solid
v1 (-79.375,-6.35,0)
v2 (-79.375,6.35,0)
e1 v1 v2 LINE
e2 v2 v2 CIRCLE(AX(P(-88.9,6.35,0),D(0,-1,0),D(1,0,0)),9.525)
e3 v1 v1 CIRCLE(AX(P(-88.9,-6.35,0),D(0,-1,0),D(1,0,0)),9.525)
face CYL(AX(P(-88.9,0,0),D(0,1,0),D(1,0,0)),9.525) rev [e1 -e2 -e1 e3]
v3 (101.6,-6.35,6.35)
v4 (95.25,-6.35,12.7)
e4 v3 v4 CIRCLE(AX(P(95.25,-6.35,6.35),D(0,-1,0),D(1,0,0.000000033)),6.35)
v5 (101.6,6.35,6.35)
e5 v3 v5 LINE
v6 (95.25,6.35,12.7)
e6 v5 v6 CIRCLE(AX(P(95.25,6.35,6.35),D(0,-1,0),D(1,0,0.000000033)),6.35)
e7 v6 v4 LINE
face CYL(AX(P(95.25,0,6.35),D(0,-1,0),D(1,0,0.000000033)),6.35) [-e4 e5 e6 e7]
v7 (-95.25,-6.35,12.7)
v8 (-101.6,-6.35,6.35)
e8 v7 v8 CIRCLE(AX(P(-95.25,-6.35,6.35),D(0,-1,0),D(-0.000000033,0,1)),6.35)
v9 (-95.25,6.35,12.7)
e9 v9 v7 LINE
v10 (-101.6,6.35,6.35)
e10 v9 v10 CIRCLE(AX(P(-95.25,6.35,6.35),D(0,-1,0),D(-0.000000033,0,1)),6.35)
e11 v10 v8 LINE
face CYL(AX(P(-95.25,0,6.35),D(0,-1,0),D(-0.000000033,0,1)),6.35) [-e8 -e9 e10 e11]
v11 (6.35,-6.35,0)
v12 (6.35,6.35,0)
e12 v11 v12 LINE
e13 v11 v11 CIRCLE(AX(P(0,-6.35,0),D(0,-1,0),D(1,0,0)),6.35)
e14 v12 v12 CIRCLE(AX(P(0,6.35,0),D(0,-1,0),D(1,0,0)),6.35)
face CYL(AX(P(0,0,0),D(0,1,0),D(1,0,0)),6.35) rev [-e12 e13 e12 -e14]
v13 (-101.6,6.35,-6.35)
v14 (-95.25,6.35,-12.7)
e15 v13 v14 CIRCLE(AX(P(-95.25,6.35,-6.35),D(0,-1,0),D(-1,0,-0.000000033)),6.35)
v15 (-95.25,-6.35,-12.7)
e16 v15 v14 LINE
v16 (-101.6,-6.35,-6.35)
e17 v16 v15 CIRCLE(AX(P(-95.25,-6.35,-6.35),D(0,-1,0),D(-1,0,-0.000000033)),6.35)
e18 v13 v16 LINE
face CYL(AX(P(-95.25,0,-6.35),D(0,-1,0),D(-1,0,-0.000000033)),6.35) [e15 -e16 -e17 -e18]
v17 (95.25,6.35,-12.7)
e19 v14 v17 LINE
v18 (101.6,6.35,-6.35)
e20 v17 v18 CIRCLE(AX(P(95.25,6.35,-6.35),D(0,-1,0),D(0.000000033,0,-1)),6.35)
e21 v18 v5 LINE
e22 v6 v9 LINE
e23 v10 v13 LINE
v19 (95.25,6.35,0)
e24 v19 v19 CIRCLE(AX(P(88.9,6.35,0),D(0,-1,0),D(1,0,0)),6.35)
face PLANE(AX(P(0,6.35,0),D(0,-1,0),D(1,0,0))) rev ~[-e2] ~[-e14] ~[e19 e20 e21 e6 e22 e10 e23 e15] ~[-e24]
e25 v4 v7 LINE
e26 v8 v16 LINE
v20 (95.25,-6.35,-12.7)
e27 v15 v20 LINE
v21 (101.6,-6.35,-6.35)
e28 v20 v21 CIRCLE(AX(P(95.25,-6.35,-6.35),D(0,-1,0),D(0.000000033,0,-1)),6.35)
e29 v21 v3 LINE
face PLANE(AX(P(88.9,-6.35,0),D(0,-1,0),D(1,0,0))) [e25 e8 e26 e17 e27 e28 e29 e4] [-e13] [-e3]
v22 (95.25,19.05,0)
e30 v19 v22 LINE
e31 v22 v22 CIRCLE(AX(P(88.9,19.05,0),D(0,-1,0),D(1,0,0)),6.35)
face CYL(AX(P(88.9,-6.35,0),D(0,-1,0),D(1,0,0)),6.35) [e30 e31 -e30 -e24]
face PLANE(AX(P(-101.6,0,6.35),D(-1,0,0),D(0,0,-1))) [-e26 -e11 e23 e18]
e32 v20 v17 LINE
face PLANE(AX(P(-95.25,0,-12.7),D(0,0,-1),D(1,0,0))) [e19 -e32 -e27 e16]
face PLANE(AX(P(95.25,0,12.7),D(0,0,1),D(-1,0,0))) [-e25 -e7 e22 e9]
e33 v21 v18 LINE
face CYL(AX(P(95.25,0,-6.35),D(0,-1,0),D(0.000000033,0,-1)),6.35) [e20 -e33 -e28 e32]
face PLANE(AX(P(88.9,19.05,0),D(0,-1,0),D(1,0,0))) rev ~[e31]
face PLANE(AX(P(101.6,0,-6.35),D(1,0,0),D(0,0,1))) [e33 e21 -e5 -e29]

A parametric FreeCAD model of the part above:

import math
import FreeCAD as App
import Part
import Sketcher
from FreeCAD import Vector
Q = App.Units.Quantity

doc = App.newDocument("Part")
params = doc.addObject("Spreadsheet::Sheet", "Params")
for row, (alias, value) in enumerate([
    ("sketch1_diameter", "0.5 in"),
    ("sketch1_diameter2", "0.75 in"),
    ("sketch1_width", "7.5 in"),
    ("sketch1_height", "0.5 in"),
    ("pad1_length", "0.5 in"),
    ("sketch2_diameter", "0.5 in"),
    ("pad2_length", "1 in"),
], start=1):
    params.set(f"A{row}", alias)
    params.set(f"B{row}", "=" + value)
    params.setAlias(f"B{row}", alias)

body = doc.addObject("PartDesign::Body", "Body")

sketch1 = body.newObject("Sketcher::SketchObject", "Sketch")
sketch1.AttachmentSupport = (doc.getObject("XZ_Plane"), [""])
sketch1.MapMode = "FlatFace"
sketch1.addGeometry([
    Part.ArcOfCircle(Part.Circle(Vector(95, 6, 0), Vector(0, 0, 1), 6), math.radians(0), math.radians(90)),
    Part.LineSegment(Vector(95, 13, 0), Vector(-95, 13, 0)),
    Part.ArcOfCircle(Part.Circle(Vector(-95, 6, 0), Vector(0, 0, 1), 6), math.radians(90), math.radians(180)),
    Part.LineSegment(Vector(-102, 6, 0), Vector(-102, -6, 0)),
    Part.ArcOfCircle(Part.Circle(Vector(-95, -6, 0), Vector(0, 0, 1), 6), math.radians(-180), math.radians(-90)),
    Part.LineSegment(Vector(-95, -13, 0), Vector(95, -13, 0)),
    Part.ArcOfCircle(Part.Circle(Vector(95, -6, 0), Vector(0, 0, 1), 6), math.radians(-90), math.radians(0)),
    Part.LineSegment(Vector(102, -6, 0), Vector(102, 6, 0)),
    Part.Circle(Vector(-89, 0, 0), Vector(0, 0, 1), 10),
    Part.Circle(Vector(0, 0, 0), Vector(0, 0, 1), 6),
], False)
sketch1.addConstraint([
    Sketcher.Constraint("Tangent", 0, 2, 1, 1),
    Sketcher.Constraint("Tangent", 1, 2, 2, 1),
    Sketcher.Constraint("Tangent", 2, 2, 3, 1),
    Sketcher.Constraint("Tangent", 3, 2, 4, 1),
    Sketcher.Constraint("Tangent", 4, 2, 5, 1),
    Sketcher.Constraint("Tangent", 5, 2, 6, 1),
    Sketcher.Constraint("Tangent", 6, 2, 7, 1),
    Sketcher.Constraint("Tangent", 7, 2, 0, 1),
    Sketcher.Constraint("Horizontal", 1),
    Sketcher.Constraint("Vertical", 3),
    Sketcher.Constraint("Horizontal", 5),
    Sketcher.Constraint("Vertical", 7),
    Sketcher.Constraint("Coincident", 9, 3, -1, 1),
    Sketcher.Constraint("Equal", 0, 2),
    Sketcher.Constraint("Equal", 2, 4),
    Sketcher.Constraint("Equal", 4, 6),
    Sketcher.Constraint("Equal", 6, 9),
    Sketcher.Constraint("Symmetric", 0, 3, 4, 3, -1, 1),
    Sketcher.Constraint("PointOnObject", 8, 3, -1),
    Sketcher.Constraint("Diameter", 9, Q("0.5 in")),
    Sketcher.Constraint("Diameter", 8, Q("0.75 in")),
    Sketcher.Constraint("DistanceX", 1, 2, 1, 1, Q("7.5 in")),
    Sketcher.Constraint("DistanceY", 3, 2, 3, 1, Q("0.5 in")),
    Sketcher.Constraint("DistanceX", 8, 3, -1, 1, Q("3.5 in")),
])
sketch1.setExpression("Constraints[19]", "Params.sketch1_diameter")
sketch1.setExpression("Constraints[20]", "Params.sketch1_diameter2")
sketch1.setExpression("Constraints[21]", "Params.sketch1_width")
sketch1.setExpression("Constraints[22]", "Params.sketch1_height")
pad1 = body.newObject("PartDesign::Pad", "Pad")
pad1.Profile = sketch1
pad1.setExpression("Length", "Params.pad1_length")
pad1.Midplane = True

sketch2 = body.newObject("Sketcher::SketchObject", "Sketch001")
sketch2.AttachmentSupport = (doc.getObject("XZ_Plane"), [""])
sketch2.MapMode = "FlatFace"
sketch2.AttachmentOffset = App.Placement(Vector(0, 0, 0.25 * 25.4), App.Rotation())
sketch2.addGeometry(Part.Circle(Vector(89, 0, 0), Vector(0, 0, 1), 6), False)
sketch2.addConstraint([
    Sketcher.Constraint("PointOnObject", 0, 3, -1),
    Sketcher.Constraint("Diameter", 0, Q("0.5 in")),
    Sketcher.Constraint("DistanceX", -1, 1, 0, 3, Q("3.5 in")),
])
sketch2.setExpression("Constraints[1]", "Params.sketch2_diameter")
pad2 = body.newObject("PartDesign::Pad", "Pad001")
pad2.Profile = sketch2
pad2.setExpression("Length", "Params.pad2_length")
pad2.Reversed = True

doc.recompute()
